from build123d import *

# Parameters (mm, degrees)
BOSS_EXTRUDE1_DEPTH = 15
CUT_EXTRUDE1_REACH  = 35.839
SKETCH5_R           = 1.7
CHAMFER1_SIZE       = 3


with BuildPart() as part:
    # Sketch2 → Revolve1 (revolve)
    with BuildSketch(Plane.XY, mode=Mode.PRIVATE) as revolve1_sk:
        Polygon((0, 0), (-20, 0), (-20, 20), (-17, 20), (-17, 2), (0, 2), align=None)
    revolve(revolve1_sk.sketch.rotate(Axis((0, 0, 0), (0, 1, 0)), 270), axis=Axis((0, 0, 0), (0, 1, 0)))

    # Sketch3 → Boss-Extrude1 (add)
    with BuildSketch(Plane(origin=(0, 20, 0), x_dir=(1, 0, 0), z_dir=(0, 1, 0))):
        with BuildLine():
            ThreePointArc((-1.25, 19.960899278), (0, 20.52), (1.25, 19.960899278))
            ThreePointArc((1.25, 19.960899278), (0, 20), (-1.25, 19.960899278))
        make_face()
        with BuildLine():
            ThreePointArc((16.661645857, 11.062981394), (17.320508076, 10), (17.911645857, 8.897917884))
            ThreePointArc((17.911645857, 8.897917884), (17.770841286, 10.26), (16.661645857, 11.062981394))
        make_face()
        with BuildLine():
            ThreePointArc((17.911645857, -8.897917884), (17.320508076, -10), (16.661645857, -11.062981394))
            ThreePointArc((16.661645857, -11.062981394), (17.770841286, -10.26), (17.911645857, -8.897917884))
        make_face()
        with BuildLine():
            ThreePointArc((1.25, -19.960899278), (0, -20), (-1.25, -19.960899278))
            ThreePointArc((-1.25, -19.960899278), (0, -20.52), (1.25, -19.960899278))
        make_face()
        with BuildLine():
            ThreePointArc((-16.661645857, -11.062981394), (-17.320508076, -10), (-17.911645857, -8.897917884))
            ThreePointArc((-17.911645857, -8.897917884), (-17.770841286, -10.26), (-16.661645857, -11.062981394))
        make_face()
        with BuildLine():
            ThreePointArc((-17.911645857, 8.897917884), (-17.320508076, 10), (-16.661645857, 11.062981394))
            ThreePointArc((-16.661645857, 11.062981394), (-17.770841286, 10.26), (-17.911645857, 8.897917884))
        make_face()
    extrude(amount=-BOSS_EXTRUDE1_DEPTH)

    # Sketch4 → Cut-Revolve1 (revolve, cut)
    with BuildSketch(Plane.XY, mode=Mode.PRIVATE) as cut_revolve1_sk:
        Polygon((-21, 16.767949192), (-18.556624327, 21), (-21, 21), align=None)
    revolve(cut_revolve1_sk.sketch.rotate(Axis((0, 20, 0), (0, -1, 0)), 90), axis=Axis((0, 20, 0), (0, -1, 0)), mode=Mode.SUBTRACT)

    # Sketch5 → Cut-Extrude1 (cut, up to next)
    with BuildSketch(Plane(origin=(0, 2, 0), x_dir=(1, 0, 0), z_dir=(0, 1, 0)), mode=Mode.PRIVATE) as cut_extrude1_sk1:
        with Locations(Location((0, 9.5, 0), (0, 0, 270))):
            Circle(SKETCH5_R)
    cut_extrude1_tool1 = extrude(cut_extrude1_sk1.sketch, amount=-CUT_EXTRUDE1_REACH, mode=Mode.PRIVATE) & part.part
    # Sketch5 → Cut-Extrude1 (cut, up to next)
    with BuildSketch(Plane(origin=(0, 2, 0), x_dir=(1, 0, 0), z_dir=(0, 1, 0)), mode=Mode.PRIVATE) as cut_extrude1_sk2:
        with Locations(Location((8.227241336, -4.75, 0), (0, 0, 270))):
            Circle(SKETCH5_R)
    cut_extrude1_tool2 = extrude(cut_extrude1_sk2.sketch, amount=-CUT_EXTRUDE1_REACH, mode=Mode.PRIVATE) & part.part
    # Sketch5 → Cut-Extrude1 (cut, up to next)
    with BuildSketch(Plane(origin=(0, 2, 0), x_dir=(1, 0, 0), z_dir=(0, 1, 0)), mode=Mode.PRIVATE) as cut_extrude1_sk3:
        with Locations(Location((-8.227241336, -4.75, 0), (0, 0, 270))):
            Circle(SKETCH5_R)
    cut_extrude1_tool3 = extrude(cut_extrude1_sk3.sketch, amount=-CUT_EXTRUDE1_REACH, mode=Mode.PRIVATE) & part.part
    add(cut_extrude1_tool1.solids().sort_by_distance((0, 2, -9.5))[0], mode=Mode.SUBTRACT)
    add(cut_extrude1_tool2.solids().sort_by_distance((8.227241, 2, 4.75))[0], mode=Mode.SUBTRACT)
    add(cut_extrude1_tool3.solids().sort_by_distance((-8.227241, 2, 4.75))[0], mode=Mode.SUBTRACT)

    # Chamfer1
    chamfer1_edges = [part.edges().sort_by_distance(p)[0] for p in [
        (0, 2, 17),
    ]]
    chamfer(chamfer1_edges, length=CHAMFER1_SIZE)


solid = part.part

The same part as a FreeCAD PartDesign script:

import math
import FreeCAD as App
import Part
import Sketcher
Q = App.Units.Quantity


def edges_at(feature, points):
    """Names of the edges that pass closest to the given points."""
    edges = feature.Shape.Edges
    near = lambda p: min(range(len(edges)), key=lambda i: edges[i].distToShape(Part.Vertex(*p))[0])
    return sorted({f"Edge{near(p) + 1}" for p in points})

doc = App.newDocument("Part")
body = doc.addObject("PartDesign::Body", "Body")

# Sketch on XY plane
sketch1 = doc.addObject("Sketcher::SketchObject", "Sketch")
body.addObject(sketch1)
sketch1.AttachmentSupport = (doc.XY_Plane, [""])
sketch1.MapMode = "FlatFace"
sketch1.addGeometry([
    Part.LineSegment(App.Vector(-20, 0, 0), App.Vector(0, 0, 0)),  # 0
    Part.LineSegment(App.Vector(0, 0, 0), App.Vector(0, 2, 0)),  # 1
    Part.LineSegment(App.Vector(0, 2, 0), App.Vector(-17, 2, 0)),  # 2
    Part.LineSegment(App.Vector(-17, 2, 0), App.Vector(-17, 20, 0)),  # 3
    Part.LineSegment(App.Vector(-17, 20, 0), App.Vector(-20, 20, 0)),  # 4
    Part.LineSegment(App.Vector(-20, 20, 0), App.Vector(-20, 0, 0)),  # 5
], False)
sketch1.addConstraint([
    Sketcher.Constraint("Coincident", 0, 2, 1, 1),
    Sketcher.Constraint("Coincident", 1, 2, 2, 1),
    Sketcher.Constraint("Coincident", 2, 2, 3, 1),
    Sketcher.Constraint("Coincident", 3, 2, 4, 1),
    Sketcher.Constraint("Coincident", 4, 2, 5, 1),
    Sketcher.Constraint("Coincident", 5, 2, 0, 1),
    Sketcher.Constraint("Horizontal", 0),
    Sketcher.Constraint("Vertical", 1),
    Sketcher.Constraint("Horizontal", 2),
    Sketcher.Constraint("Vertical", 3),
    Sketcher.Constraint("Horizontal", 4),
    Sketcher.Constraint("Vertical", 5),
    Sketcher.Constraint("Coincident", 0, 2, -1, 1),
    Sketcher.Constraint("Equal", 0, 5),
    Sketcher.Constraint("DistanceX", 0, 1, 0, 2, Q("20 mm")),
    Sketcher.Constraint("DistanceX", 2, 2, 2, 1, Q("17 mm")),
    Sketcher.Constraint("DistanceY", 1, 1, 1, 2, Q("2 mm")),
])
revolution = doc.addObject("PartDesign::Revolution", "Revolution")
body.addObject(revolution)
revolution.Profile = sketch1
revolution.ReferenceAxis = (sketch1, ["V_Axis"])
revolution.Angle = 360

# Sketch on XZ plane
sketch2 = doc.addObject("Sketcher::SketchObject", "Sketch001")
body.addObject(sketch2)
sketch2.AttachmentSupport = (doc.XZ_Plane, [""])
sketch2.MapMode = "FlatFace"
sketch2.AttachmentOffset = App.Placement(App.Vector(0, 0, -20), App.Rotation())
sketch2.addGeometry([
    Part.ArcOfCircle(Part.Circle(App.Vector(0, -18.8, 0), App.Vector(0, 0, 1), 1.7), math.radians(-138), math.radians(-42)),  # 0
    Part.ArcOfCircle(Part.Circle(App.Vector(0, 0, 0), App.Vector(0, 0, 1), 20), math.radians(-93.58), math.radians(-86.42)),  # 1
    Part.ArcOfCircle(Part.Circle(App.Vector(0, 0, 0), App.Vector(0, 0, 1), 20), math.radians(-33.58), math.radians(-26.42)),  # 2
    Part.ArcOfCircle(Part.Circle(App.Vector(16.3, -9.4, 0), App.Vector(0, 0, 1), 1.7), math.radians(-78), math.radians(18)),  # 3
    Part.ArcOfCircle(Part.Circle(App.Vector(0, 0, 0), App.Vector(0, 0, 1), 20), math.radians(26.42), math.radians(33.58)),  # 4
    Part.ArcOfCircle(Part.Circle(App.Vector(16.3, 9.4, 0), App.Vector(0, 0, 1), 1.7), math.radians(-18), math.radians(78)),  # 5
    Part.ArcOfCircle(Part.Circle(App.Vector(0, 0, 0), App.Vector(0, 0, 1), 20), math.radians(86.42), math.radians(93.58)),  # 6
    Part.ArcOfCircle(Part.Circle(App.Vector(0, 18.8, 0), App.Vector(0, 0, 1), 1.7), math.radians(42), math.radians(138)),  # 7
    Part.ArcOfCircle(Part.Circle(App.Vector(0, 0, 0), App.Vector(0, 0, 1), 20), math.radians(146.42), math.radians(153.58)),  # 8
    Part.ArcOfCircle(Part.Circle(App.Vector(-16.3, 9.4, 0), App.Vector(0, 0, 1), 1.7), math.radians(102), math.radians(198)),  # 9
    Part.ArcOfCircle(Part.Circle(App.Vector(0, 0, 0), App.Vector(0, 0, 1), 20), math.radians(-153.58), math.radians(-146.42)),  # 10
    Part.ArcOfCircle(Part.Circle(App.Vector(-16.3, -9.4, 0), App.Vector(0, 0, 1), 1.7), math.radians(162), math.radians(258)),  # 11
], False)
sketch2.addConstraint([
    Sketcher.Constraint("Coincident", 0, 1, 1, 1),
    Sketcher.Constraint("Coincident", 1, 2, 0, 2),
    Sketcher.Constraint("Coincident", 2, 1, 3, 1),
    Sketcher.Constraint("Coincident", 3, 2, 2, 2),
    Sketcher.Constraint("Coincident", 4, 1, 5, 1),
    Sketcher.Constraint("Coincident", 5, 2, 4, 2),
    Sketcher.Constraint("Coincident", 6, 1, 7, 1),
    Sketcher.Constraint("Coincident", 7, 2, 6, 2),
    Sketcher.Constraint("Coincident", 8, 1, 9, 1),
    Sketcher.Constraint("Coincident", 9, 2, 8, 2),
    Sketcher.Constraint("Coincident", 10, 1, 11, 1),
    Sketcher.Constraint("Coincident", 11, 2, 10, 2),
    Sketcher.Constraint("Coincident", 1, 3, -1, 1),
    Sketcher.Constraint("Coincident", 2, 3, -1, 1),
    Sketcher.Constraint("Coincident", 4, 3, -1, 1),
    Sketcher.Constraint("Coincident", 6, 3, -1, 1),
    Sketcher.Constraint("Coincident", 8, 3, -1, 1),
    Sketcher.Constraint("Coincident", 10, 3, -1, 1),
    Sketcher.Constraint("Equal", 1, 2),
    Sketcher.Constraint("Equal", 0, 3),
    Sketcher.Constraint("Equal", 2, 4),
    Sketcher.Constraint("Equal", 3, 5),
    Sketcher.Constraint("Equal", 4, 6),
    Sketcher.Constraint("Equal", 5, 7),
    Sketcher.Constraint("Equal", 6, 8),
    Sketcher.Constraint("Equal", 7, 9),
    Sketcher.Constraint("Equal", 8, 10),
    Sketcher.Constraint("Equal", 9, 11),
    Sketcher.Constraint("Symmetric", 0, 3, 7, 3, -1, 1),
    Sketcher.Constraint("Symmetric", 3, 3, 9, 3, -1, 1),
    Sketcher.Constraint("Symmetric", 5, 3, 11, 3, -1, 1),
    Sketcher.Constraint("Symmetric", 5, 3, 9, 3, -2),
    Sketcher.Constraint("PointOnObject", 0, 3, -2),
    Sketcher.Constraint("Radius", 1, Q("20 mm")),
    Sketcher.Constraint("DistanceX", 0, 1, 1, 2, Q("2.5 mm")),
    Sketcher.Constraint("DistanceX", 2, 1, 3, 2, Q("1.25 mm")),
    Sketcher.Constraint("Radius", 0, Q("1.676884 mm")),
    Sketcher.Constraint("DistanceY", 3, 3, -1, 1, Q("9.421558 mm")),
])
pad1 = doc.addObject("PartDesign::Pad", "Pad")
body.addObject(pad1)
pad1.Profile = sketch2
pad1.Length = 15

# Sketch on XY plane
sketch3 = doc.addObject("Sketcher::SketchObject", "Sketch002")
body.addObject(sketch3)
sketch3.AttachmentSupport = (doc.XY_Plane, [""])
sketch3.MapMode = "FlatFace"
sketch3.addGeometry([
    Part.LineSegment(App.Vector(-21, 16.8, 0), App.Vector(-18.6, 21, 0)),
    Part.LineSegment(App.Vector(-18.6, 21, 0), App.Vector(-21, 21, 0)),
    Part.LineSegment(App.Vector(-21, 21, 0), App.Vector(-21, 16.8, 0)),
], False)
sketch3.addConstraint([
    Sketcher.Constraint("Coincident", 0, 2, 1, 1),
    Sketcher.Constraint("Coincident", 1, 2, 2, 1),
    Sketcher.Constraint("Coincident", 2, 2, 0, 1),
    Sketcher.Constraint("Horizontal", 1),
    Sketcher.Constraint("Vertical", 2),
    Sketcher.Constraint("Angle", 0, Q("60 deg")),
    Sketcher.Constraint("DistanceY", -1, 1, 0, 2, Q("21 mm")),
    Sketcher.Constraint("DistanceX", 1, 2, -1, 1, Q("21 mm")),
    Sketcher.Constraint("DistanceY", 2, 2, 2, 1, Q("4.232051 mm")),
])
groove = doc.addObject("PartDesign::Groove", "Groove")
body.addObject(groove)
groove.Profile = sketch3
groove.ReferenceAxis = (sketch3, ["V_Axis"])
groove.Angle = 360

# Sketch on XZ plane
sketch4 = doc.addObject("Sketcher::SketchObject", "Sketch003")
body.addObject(sketch4)
sketch4.AttachmentSupport = (doc.XZ_Plane, [""])
sketch4.MapMode = "FlatFace"
sketch4.AttachmentOffset = App.Placement(App.Vector(0, 0, -2), App.Rotation())
sketch4.addGeometry(Part.Circle(App.Vector(0, -9.5, 0), App.Vector(0, 0, 1), 1.7), False)
sketch4.addConstraint([
    Sketcher.Constraint("PointOnObject", 0, 3, -2),
    Sketcher.Constraint("Diameter", 0, Q("3.4 mm")),
    Sketcher.Constraint("DistanceY", 0, 3, -1, 1, Q("9.5 mm")),
])
pocket1 = doc.addObject("PartDesign::Pocket", "Pocket")
body.addObject(pocket1)
pocket1.Profile = sketch4
pocket1.Type = "UpToFirst"
pocket1.Reversed = True

# Sketch on XZ plane
sketch5 = doc.addObject("Sketcher::SketchObject", "Sketch004")
body.addObject(sketch5)
sketch5.AttachmentSupport = (doc.XZ_Plane, [""])
sketch5.MapMode = "FlatFace"
sketch5.AttachmentOffset = App.Placement(App.Vector(0, 0, -2), App.Rotation())
sketch5.addGeometry(Part.Circle(App.Vector(8.2, 4.8, 0), App.Vector(0, 0, 1), 1.7), False)
sketch5.addConstraint([
    Sketcher.Constraint("Diameter", 0, Q("3.4 mm")),
    Sketcher.Constraint("DistanceY", -1, 1, 0, 3, Q("4.75 mm")),
    Sketcher.Constraint("DistanceX", -1, 1, 0, 3, Q("8.227241 mm")),
])
pocket2 = doc.addObject("PartDesign::Pocket", "Pocket001")
body.addObject(pocket2)
pocket2.Profile = sketch5
pocket2.Type = "UpToFirst"
pocket2.Reversed = True

# Sketch on XZ plane
sketch6 = doc.addObject("Sketcher::SketchObject", "Sketch005")
body.addObject(sketch6)
sketch6.AttachmentSupport = (doc.XZ_Plane, [""])
sketch6.MapMode = "FlatFace"
sketch6.AttachmentOffset = App.Placement(App.Vector(0, 0, -2), App.Rotation())
sketch6.addGeometry(Part.Circle(App.Vector(-8.2, 4.8, 0), App.Vector(0, 0, 1), 1.7), False)
sketch6.addConstraint([
    Sketcher.Constraint("Diameter", 0, Q("3.4 mm")),
    Sketcher.Constraint("DistanceY", -1, 1, 0, 3, Q("4.75 mm")),
    Sketcher.Constraint("DistanceX", 0, 3, -1, 1, Q("8.227241 mm")),
])
pocket3 = doc.addObject("PartDesign::Pocket", "Pocket002")
body.addObject(pocket3)
pocket3.Profile = sketch6
pocket3.Type = "UpToFirst"
pocket3.Reversed = True
doc.recompute()

chamfer = doc.addObject("PartDesign::Chamfer", "Chamfer")
body.addObject(chamfer)
chamfer.Base = (pocket3, edges_at(pocket3, [(0, 2, 17)]))
chamfer.Size = 3

doc.recompute()
